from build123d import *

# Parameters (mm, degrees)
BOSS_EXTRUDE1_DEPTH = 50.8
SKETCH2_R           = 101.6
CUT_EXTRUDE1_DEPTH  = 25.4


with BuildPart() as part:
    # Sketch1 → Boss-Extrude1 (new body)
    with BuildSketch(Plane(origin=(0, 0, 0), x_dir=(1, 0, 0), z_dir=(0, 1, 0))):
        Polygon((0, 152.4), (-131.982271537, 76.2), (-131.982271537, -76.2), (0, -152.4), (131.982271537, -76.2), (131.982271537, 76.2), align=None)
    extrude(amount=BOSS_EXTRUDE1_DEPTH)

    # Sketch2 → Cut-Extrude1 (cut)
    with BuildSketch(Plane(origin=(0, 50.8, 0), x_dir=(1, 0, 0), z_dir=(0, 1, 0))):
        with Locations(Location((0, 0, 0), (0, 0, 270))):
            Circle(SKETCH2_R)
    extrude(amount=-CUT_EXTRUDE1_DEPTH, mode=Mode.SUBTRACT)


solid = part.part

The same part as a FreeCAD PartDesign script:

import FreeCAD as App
import Part
import Sketcher

V = App.Vector
Q = App.Units.Quantity

doc = App.newDocument("Part")
body = doc.addObject("PartDesign::Body", "Body")

# Sketch on XZ plane
sketch1 = doc.addObject("Sketcher::SketchObject", "Sketch")
body.addObject(sketch1)
sketch1.AttachmentSupport = (doc.XZ_Plane, [""])
sketch1.MapMode = "FlatFace"
sketch1.addGeometry(Part.LineSegment(V(0, -152, 0), V(-132, -76, 0)), False)
sketch1.addGeometry(Part.LineSegment(V(-132, -76, 0), V(-132, 76, 0)), False)
sketch1.addGeometry(Part.LineSegment(V(-132, 76, 0), V(0, 152, 0)), False)
sketch1.addGeometry(Part.LineSegment(V(0, 152, 0), V(132, 76, 0)), False)
sketch1.addGeometry(Part.LineSegment(V(132, 76, 0), V(132, -76, 0)), False)
sketch1.addGeometry(Part.LineSegment(V(132, -76, 0), V(0, -152, 0)), False)
sketch1.addConstraint(Sketcher.Constraint("Coincident", 0, 2, 1, 1))
sketch1.addConstraint(Sketcher.Constraint("Coincident", 1, 2, 2, 1))
sketch1.addConstraint(Sketcher.Constraint("Coincident", 2, 2, 3, 1))
sketch1.addConstraint(Sketcher.Constraint("Coincident", 3, 2, 4, 1))
sketch1.addConstraint(Sketcher.Constraint("Coincident", 4, 2, 5, 1))
sketch1.addConstraint(Sketcher.Constraint("Coincident", 5, 2, 0, 1))
sketch1.addConstraint(Sketcher.Constraint("Vertical", 1))
sketch1.addConstraint(Sketcher.Constraint("Vertical", 4))
sketch1.addConstraint(Sketcher.Constraint("Symmetric", 0, 2, 3, 2, -1, 1))
sketch1.addConstraint(Sketcher.Constraint("Symmetric", 2, 2, 5, 2, -1, 1))
sketch1.addConstraint(Sketcher.Constraint("PointOnObject", 2, 2, -2))
sketch1.addConstraint(Sketcher.Constraint("Parallel", 2, 5))
sketch1.addConstraint(Sketcher.Constraint("Horizontal", 1, 2, 3, 2))
sketch1.addConstraint(Sketcher.Constraint("DistanceY", 1, 1, 1, 2, Q("6 in")))
sketch1.addConstraint(Sketcher.Constraint("Distance", 0, Q("6 in")))
sketch1.addConstraint(Sketcher.Constraint("DistanceY", -1, 1, 2, 2, Q("6 in")))
pad1 = doc.addObject("PartDesign::Pad", "Pad")
body.addObject(pad1)
pad1.Profile = sketch1
pad1.Length = Q("2 in")
pad1.Reversed = True

# Sketch on XZ plane
sketch2 = doc.addObject("Sketcher::SketchObject", "Sketch001")
body.addObject(sketch2)
sketch2.AttachmentSupport = (doc.XZ_Plane, [""])
sketch2.MapMode = "FlatFace"
sketch2.AttachmentOffset = App.Placement(V(0, 0, -2 * 25.4), App.Rotation())
sketch2.addGeometry(Part.Circle(V(0, 0, 0), V(0, 0, 1), 102), False)
sketch2.addConstraint(Sketcher.Constraint("Coincident", 0, 3, -1, 1))
sketch2.addConstraint(Sketcher.Constraint("Diameter", 0, Q("8 in")))
pocket1 = doc.addObject("PartDesign::Pocket", "Pocket")
body.addObject(pocket1)
pocket1.Profile = sketch2
pocket1.Length = Q("1 in")
pocket1.Reversed = True

doc.recompute()
